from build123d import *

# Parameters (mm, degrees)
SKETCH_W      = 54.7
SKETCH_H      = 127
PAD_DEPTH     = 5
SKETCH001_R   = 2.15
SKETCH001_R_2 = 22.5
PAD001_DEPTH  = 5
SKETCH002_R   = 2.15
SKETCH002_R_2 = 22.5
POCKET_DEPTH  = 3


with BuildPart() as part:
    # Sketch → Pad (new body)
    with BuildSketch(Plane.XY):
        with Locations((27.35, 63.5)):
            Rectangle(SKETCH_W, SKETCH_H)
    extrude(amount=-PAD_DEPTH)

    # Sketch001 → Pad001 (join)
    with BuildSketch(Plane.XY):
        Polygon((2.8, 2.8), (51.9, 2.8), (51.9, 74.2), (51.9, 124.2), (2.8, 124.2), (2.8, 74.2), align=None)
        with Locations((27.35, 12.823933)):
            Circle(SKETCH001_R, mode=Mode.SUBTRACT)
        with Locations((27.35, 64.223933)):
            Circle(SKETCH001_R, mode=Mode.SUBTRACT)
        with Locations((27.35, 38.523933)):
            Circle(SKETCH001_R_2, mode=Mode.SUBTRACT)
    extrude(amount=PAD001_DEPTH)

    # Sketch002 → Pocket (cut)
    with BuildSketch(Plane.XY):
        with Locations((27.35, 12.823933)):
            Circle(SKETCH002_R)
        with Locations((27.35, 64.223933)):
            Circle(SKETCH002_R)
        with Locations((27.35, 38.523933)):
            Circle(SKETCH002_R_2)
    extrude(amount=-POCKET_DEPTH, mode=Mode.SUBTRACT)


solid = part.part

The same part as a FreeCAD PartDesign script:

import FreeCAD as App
import Part
import Sketcher

V = App.Vector
Q = App.Units.Quantity


def add_polygon(sketch, points):
    """Adds a closed chain of lines whose ends are joined by coincident constraints."""
    first, n = sketch.GeometryCount, len(points)
    for a, b in zip(points, points[1:] + points[:1]):
        sketch.addGeometry(Part.LineSegment(App.Vector(*a, 0), App.Vector(*b, 0)), False)
    for i in range(n):
        sketch.addConstraint(Sketcher.Constraint("Coincident", first + i, 2, first + (i + 1) % n, 1))

doc = App.newDocument("Part")
body = doc.addObject("PartDesign::Body", "Body")

# Sketch on XY plane
sketch1 = doc.addObject("Sketcher::SketchObject", "Sketch")
body.addObject(sketch1)
sketch1.AttachmentSupport = (doc.XY_Plane, [""])
sketch1.MapMode = "FlatFace"
add_polygon(sketch1, [(0, 127), (0, 0), (55, 0), (55, 127)])  # lines 0-3
sketch1.addConstraint(Sketcher.Constraint("Vertical", 0))
sketch1.addConstraint(Sketcher.Constraint("Horizontal", 1))
sketch1.addConstraint(Sketcher.Constraint("Vertical", 2))
sketch1.addConstraint(Sketcher.Constraint("Horizontal", 3))
sketch1.addConstraint(Sketcher.Constraint("Coincident", 0, 2, -1, 1))
sketch1.addConstraint(Sketcher.Constraint("DistanceY", 0, 2, 0, 1, Q("127 mm")))
sketch1.addConstraint(Sketcher.Constraint("DistanceX", 1, 1, 1, 2, Q("54.7 mm")))
pad1 = doc.addObject("PartDesign::Pad", "Pad")
body.addObject(pad1)
pad1.Profile = sketch1
pad1.Length = 5
pad1.Reversed = True

# Sketch on XY plane
sketch2 = doc.addObject("Sketcher::SketchObject", "Sketch001")
body.addObject(sketch2)
sketch2.AttachmentSupport = (doc.XY_Plane, [""])
sketch2.MapMode = "FlatFace"
add_polygon(sketch2, [(2.8, 2.8), (51.9, 2.8), (51.9, 124.2), (2.8, 124.2)])  # lines 0-3
sketch2.addGeometry(Part.Circle(V(27.4, 12.8, 0), V(0, 0, 1), 2.1), False)  # 4
sketch2.addGeometry(Part.Circle(V(27.4, 38.5, 0), V(0, 0, 1), 22.5), False)  # 5
sketch2.addGeometry(Part.Circle(V(27.4, 64.2, 0), V(0, 0, 1), 2.1), False)  # 6
sketch2.addConstraint(Sketcher.Constraint("Horizontal", 0))
sketch2.addConstraint(Sketcher.Constraint("Vertical", 1))
sketch2.addConstraint(Sketcher.Constraint("Horizontal", 2))
sketch2.addConstraint(Sketcher.Constraint("Vertical", 3))
sketch2.addConstraint(Sketcher.Constraint("Equal", 4, 6))
sketch2.addConstraint(Sketcher.Constraint("Vertical", 4, 3, 5, 3))
sketch2.addConstraint(Sketcher.Constraint("Vertical", 5, 3, 6, 3))
sketch2.addConstraint(Sketcher.Constraint("Diameter", 5, Q("45 mm")))
sketch2.addConstraint(Sketcher.Constraint("Diameter", 4, Q("4.3 mm")))
sketch2.addConstraint(Sketcher.Constraint("DistanceX", 0, 1, 0, 2, Q("49.1 mm")))
sketch2.addConstraint(Sketcher.Constraint("DistanceY", 1, 1, 1, 2, Q("121.4 mm")))
sketch2.addConstraint(Sketcher.Constraint("DistanceX", -1, 1, 0, 2, Q("51.9 mm")))
sketch2.addConstraint(Sketcher.Constraint("DistanceY", -1, 1, 0, 2, Q("2.8 mm")))
sketch2.addConstraint(Sketcher.Constraint("DistanceY", 4, 3, 5, 3, Q("25.7 mm")))
sketch2.addConstraint(Sketcher.Constraint("DistanceY", 5, 3, 6, 3, Q("25.7 mm")))
sketch2.addConstraint(Sketcher.Constraint("DistanceX", -1, 1, 4, 3, Q("27.35 mm")))
sketch2.addConstraint(Sketcher.Constraint("DistanceY", -1, 1, 4, 3, Q("12.823933 mm")))
pad2 = doc.addObject("PartDesign::Pad", "Pad001")
body.addObject(pad2)
pad2.Profile = sketch2
pad2.Length = 5

# Sketch on XY plane
sketch3 = doc.addObject("Sketcher::SketchObject", "Sketch002")
body.addObject(sketch3)
sketch3.AttachmentSupport = (doc.XY_Plane, [""])
sketch3.MapMode = "FlatFace"
sketch3.addGeometry(Part.Circle(V(27.4, 12.8, 0), V(0, 0, 1), 2.1), False)
sketch3.addGeometry(Part.Circle(V(27.4, 64.2, 0), V(0, 0, 1), 2.1), False)
sketch3.addGeometry(Part.Circle(V(27.4, 38.5, 0), V(0, 0, 1), 22.5), False)
sketch3.addConstraint(Sketcher.Constraint("Equal", 0, 1))
sketch3.addConstraint(Sketcher.Constraint("Vertical", 0, 3, 1, 3))
sketch3.addConstraint(Sketcher.Constraint("Vertical", 1, 3, 2, 3))
sketch3.addConstraint(Sketcher.Constraint("Diameter", 2, Q("45 mm")))
sketch3.addConstraint(Sketcher.Constraint("Diameter", 0, Q("4.3 mm")))
sketch3.addConstraint(Sketcher.Constraint("DistanceY", 0, 3, 1, 3, Q("51.4 mm")))
sketch3.addConstraint(Sketcher.Constraint("DistanceY", 0, 3, 2, 3, Q("25.7 mm")))
sketch3.addConstraint(Sketcher.Constraint("DistanceX", -1, 1, 0, 3, Q("27.35 mm")))
sketch3.addConstraint(Sketcher.Constraint("DistanceY", -1, 1, 0, 3, Q("12.823933 mm")))
pocket1 = doc.addObject("PartDesign::Pocket", "Pocket")
body.addObject(pocket1)
pocket1.Profile = sketch3
pocket1.Length = 3

doc.recompute()
